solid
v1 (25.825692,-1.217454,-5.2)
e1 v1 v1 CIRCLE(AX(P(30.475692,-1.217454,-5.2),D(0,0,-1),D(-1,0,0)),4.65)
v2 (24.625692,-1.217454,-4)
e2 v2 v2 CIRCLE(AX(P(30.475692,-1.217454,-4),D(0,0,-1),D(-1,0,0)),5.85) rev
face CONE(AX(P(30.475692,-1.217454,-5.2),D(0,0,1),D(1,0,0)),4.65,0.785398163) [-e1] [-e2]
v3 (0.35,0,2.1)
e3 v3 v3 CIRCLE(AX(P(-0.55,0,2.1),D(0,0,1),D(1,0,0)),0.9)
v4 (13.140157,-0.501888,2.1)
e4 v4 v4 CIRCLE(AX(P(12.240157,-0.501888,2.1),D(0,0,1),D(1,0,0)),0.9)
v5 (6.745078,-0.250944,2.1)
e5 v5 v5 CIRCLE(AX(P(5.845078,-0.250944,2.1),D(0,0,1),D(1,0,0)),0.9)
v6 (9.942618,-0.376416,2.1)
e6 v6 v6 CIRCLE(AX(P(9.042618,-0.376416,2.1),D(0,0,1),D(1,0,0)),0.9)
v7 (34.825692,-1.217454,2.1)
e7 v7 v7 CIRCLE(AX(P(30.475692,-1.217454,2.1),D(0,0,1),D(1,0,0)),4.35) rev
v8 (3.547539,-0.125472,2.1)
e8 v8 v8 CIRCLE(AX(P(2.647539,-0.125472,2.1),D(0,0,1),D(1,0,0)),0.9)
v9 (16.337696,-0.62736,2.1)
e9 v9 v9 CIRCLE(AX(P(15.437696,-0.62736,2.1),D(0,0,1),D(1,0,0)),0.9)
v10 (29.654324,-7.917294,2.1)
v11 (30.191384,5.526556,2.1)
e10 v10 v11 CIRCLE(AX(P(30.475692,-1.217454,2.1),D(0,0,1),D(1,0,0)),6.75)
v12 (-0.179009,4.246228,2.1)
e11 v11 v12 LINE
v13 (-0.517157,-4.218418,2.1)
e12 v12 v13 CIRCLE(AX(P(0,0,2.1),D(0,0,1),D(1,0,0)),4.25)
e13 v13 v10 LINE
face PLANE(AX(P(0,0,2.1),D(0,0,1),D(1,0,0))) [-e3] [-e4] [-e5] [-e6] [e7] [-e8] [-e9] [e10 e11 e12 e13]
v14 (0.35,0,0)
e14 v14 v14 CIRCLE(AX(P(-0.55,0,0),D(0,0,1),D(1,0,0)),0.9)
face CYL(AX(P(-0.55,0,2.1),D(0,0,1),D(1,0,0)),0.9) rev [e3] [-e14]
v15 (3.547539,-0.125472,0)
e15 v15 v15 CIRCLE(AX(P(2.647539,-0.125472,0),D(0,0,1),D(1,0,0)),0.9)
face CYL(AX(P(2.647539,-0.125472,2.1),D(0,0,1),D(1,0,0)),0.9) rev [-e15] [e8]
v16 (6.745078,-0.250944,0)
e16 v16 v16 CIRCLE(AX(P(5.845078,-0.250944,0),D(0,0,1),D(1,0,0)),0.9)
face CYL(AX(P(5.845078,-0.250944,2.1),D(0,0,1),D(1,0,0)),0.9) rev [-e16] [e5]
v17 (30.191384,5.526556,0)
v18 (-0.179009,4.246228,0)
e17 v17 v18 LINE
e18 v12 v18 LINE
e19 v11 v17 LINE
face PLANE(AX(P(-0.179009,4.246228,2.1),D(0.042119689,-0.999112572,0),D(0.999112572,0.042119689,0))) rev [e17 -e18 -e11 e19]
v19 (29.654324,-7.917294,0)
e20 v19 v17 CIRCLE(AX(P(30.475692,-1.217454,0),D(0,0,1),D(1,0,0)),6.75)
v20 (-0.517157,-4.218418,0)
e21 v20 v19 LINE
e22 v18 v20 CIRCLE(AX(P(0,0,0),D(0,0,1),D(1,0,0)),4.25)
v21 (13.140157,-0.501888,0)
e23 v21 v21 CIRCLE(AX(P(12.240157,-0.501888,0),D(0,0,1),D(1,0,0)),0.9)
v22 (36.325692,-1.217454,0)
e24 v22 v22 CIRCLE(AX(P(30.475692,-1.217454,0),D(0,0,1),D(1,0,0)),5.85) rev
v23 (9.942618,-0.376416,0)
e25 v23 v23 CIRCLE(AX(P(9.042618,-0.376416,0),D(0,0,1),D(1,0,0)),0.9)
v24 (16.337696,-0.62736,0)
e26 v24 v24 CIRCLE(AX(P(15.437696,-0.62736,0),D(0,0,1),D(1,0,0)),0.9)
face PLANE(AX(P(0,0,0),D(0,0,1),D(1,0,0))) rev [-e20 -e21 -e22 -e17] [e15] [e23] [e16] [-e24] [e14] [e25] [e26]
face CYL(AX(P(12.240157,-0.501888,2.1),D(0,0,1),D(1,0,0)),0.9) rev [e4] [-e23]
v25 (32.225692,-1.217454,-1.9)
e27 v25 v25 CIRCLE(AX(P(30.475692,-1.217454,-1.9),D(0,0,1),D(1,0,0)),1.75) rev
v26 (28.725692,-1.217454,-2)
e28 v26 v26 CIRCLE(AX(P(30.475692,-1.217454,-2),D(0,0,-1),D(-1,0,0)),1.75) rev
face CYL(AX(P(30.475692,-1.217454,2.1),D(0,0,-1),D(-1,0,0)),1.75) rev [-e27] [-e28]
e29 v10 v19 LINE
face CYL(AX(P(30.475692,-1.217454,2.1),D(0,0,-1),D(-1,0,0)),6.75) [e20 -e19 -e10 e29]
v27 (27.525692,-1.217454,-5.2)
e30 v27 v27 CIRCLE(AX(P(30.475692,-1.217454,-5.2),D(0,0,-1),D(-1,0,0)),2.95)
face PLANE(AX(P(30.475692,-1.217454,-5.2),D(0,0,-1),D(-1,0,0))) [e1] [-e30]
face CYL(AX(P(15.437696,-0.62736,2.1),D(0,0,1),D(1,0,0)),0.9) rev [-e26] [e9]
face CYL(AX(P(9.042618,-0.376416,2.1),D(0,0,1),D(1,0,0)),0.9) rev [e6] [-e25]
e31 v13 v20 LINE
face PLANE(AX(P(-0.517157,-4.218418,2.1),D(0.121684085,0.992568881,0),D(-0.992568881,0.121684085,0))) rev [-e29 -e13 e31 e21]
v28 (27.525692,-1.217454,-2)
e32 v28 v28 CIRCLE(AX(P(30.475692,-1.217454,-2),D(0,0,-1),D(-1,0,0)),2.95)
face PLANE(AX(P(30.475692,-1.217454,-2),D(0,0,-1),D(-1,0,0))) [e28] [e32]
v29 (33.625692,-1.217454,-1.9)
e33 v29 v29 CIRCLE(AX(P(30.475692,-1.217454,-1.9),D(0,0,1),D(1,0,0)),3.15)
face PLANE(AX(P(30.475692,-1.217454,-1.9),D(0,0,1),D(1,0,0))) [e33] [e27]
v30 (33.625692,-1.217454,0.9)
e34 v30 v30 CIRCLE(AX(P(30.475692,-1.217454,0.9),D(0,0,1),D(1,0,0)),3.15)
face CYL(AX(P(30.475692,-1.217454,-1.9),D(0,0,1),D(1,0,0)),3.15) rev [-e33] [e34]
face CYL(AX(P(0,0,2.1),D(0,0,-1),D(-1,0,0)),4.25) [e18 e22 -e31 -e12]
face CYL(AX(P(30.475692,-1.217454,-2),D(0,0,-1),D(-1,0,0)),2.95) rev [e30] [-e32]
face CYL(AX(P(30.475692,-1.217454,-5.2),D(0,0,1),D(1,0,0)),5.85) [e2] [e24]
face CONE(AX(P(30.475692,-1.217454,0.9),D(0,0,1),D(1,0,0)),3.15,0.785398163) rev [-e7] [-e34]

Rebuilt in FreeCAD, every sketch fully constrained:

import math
import FreeCAD as App
import Part
import Sketcher

V = App.Vector


def edges_at(feature, points):
    """Names of the edges that pass closest to the given points."""
    edges = feature.Shape.Edges
    near = lambda p: min(range(len(edges)), key=lambda i: edges[i].distToShape(Part.Vertex(*p))[0])
    return sorted({f"Edge{near(p) + 1}" for p in points})

doc = App.newDocument("Part")
body = doc.addObject("PartDesign::Body", "Body")

# Sketch on XY plane
sketch1 = body.newObject("Sketcher::SketchObject", "Sketch")
sketch1.AttachmentSupport = (doc.getObject("XY_Plane"), [""])
sketch1.MapMode = "FlatFace"
sketch1.addGeometry([
    Part.LineSegment(V(30.2, 5.5, 0), V(-0.2, 4.2, 0)),
    Part.ArcOfCircle(Part.Circle(V(0, 0, 0), V(0, 0, 1), 4.2), math.radians(92), math.radians(263)),
    Part.LineSegment(V(-0.5, -4.2, 0), V(29.7, -7.9, 0)),
    Part.ArcOfCircle(Part.Circle(V(30.5, -1.2, 0), V(0, 0, 1), 6.8), math.radians(-97), math.radians(92)),
], False)
sketch1.addConstraint([
    Sketcher.Constraint("Tangent", 0, 2, 1, 1),
    Sketcher.Constraint("Tangent", 1, 2, 2, 1),
    Sketcher.Constraint("Tangent", 2, 2, 3, 1),
    Sketcher.Constraint("Tangent", 3, 2, 0, 1),
    Sketcher.Constraint("Coincident", 1, 3, -1, 1),
    Sketcher.Constraint("Radius", 1, 4.25),
    Sketcher.Constraint("Radius", 3, 6.75),
    Sketcher.Constraint("DistanceX", 0, 2, 3, 3, 30.654701),
    Sketcher.Constraint("Distance", 0, 30.397368),
])
pad1 = body.newObject("PartDesign::Pad", "Pad")
pad1.Profile = sketch1
pad1.Length = 2.1

# Sketch on XY plane
sketch2 = body.newObject("Sketcher::SketchObject", "Sketch001")
sketch2.AttachmentSupport = (doc.getObject("XY_Plane"), [""])
sketch2.MapMode = "FlatFace"
sketch2.addGeometry(Part.Circle(V(30, -1, 0), V(0, 0, 1), 6), False)
sketch2.addConstraint([
    Sketcher.Constraint("Diameter", 0, 11.7),
    Sketcher.Constraint("DistanceX", -1, 1, 0, 3, 30.475692),
    Sketcher.Constraint("DistanceY", 0, 3, -1, 1, 1.217454),
])
pad2 = body.newObject("PartDesign::Pad", "Pad001")
pad2.Profile = sketch2
pad2.Length = 5.2
pad2.Reversed = True

# Sketch on XY plane
sketch3 = body.newObject("Sketcher::SketchObject", "Sketch002")
sketch3.AttachmentSupport = (doc.getObject("XY_Plane"), [""])
sketch3.MapMode = "FlatFace"
sketch3.AttachmentOffset = App.Placement(V(0, 0, -5.2), App.Rotation())
sketch3.addGeometry(Part.Circle(V(30.5, -1.2, 0), V(0, 0, 1), 1.8), False)
sketch3.addConstraint([
    Sketcher.Constraint("Diameter", 0, 3.5),
    Sketcher.Constraint("DistanceX", -1, 1, 0, 3, 30.475692),
    Sketcher.Constraint("DistanceY", 0, 3, -1, 1, 1.217454),
])
pocket1 = body.newObject("PartDesign::Pocket", "Pocket")
pocket1.Profile = sketch3
pocket1.Type = "ThroughAll"
pocket1.Reversed = True

# Sketch on XY plane
sketch4 = body.newObject("Sketcher::SketchObject", "Sketch003")
sketch4.AttachmentSupport = (doc.getObject("XY_Plane"), [""])
sketch4.MapMode = "FlatFace"
sketch4.AttachmentOffset = App.Placement(V(0, 0, 2.1), App.Rotation())
sketch4.addGeometry(Part.Circle(V(30.5, -1.2, 0), V(0, 0, 1), 3.1), False)
sketch4.addConstraint([
    Sketcher.Constraint("Diameter", 0, 6.3),
    Sketcher.Constraint("DistanceX", -1, 1, 0, 3, 30.475692),
    Sketcher.Constraint("DistanceY", 0, 3, -1, 1, 1.217454),
])
pocket2 = body.newObject("PartDesign::Pocket", "Pocket001")
pocket2.Profile = sketch4
pocket2.Length = 4

# Sketch on XY plane
sketch5 = body.newObject("Sketcher::SketchObject", "Sketch004")
sketch5.AttachmentSupport = (doc.getObject("XY_Plane"), [""])
sketch5.MapMode = "FlatFace"
sketch5.AttachmentOffset = App.Placement(V(0, 0, -5.2), App.Rotation())
sketch5.addGeometry(Part.Circle(V(30.5, -1.2, 0), V(0, 0, 1), 3), False)
sketch5.addConstraint([
    Sketcher.Constraint("Diameter", 0, 5.9),
    Sketcher.Constraint("DistanceX", -1, 1, 0, 3, 30.475692),
    Sketcher.Constraint("DistanceY", 0, 3, -1, 1, 1.217454),
])
pocket3 = body.newObject("PartDesign::Pocket", "Pocket002")
pocket3.Profile = sketch5
pocket3.Length = 3.2
pocket3.Reversed = True
doc.recompute()

chamfer = body.newObject("PartDesign::Chamfer", "Chamfer")
chamfer.Base = (pocket3, edges_at(pocket3, [(24.626, -1.217, -5.2), (27.326, -1.217, 2.1)]))
chamfer.Size = 1.2

# Sketch on XY plane
sketch6 = body.newObject("Sketcher::SketchObject", "Sketch005")
sketch6.AttachmentSupport = (doc.getObject("XY_Plane"), [""])
sketch6.MapMode = "FlatFace"
sketch6.AttachmentOffset = App.Placement(V(0, 0, 2.1), App.Rotation())
sketch6.addGeometry(Part.Circle(V(-0.6, 0, 0), V(0, 0, 1), 0.9), False)
sketch6.addConstraint([
    Sketcher.Constraint("PointOnObject", 0, 3, -1),
    Sketcher.Constraint("Diameter", 0, 1.8),
    Sketcher.Constraint("DistanceX", 0, 3, -1, 1, 0.55),
])
doc.recompute()
hole = body.newObject("PartDesign::Hole", "Hole")
hole.Profile = sketch6
hole.ThreadType = "None"
hole.Diameter = 1.8
hole.DepthType = "ThroughAll"
doc.recompute()

datumline = body.newObject("PartDesign::Line", "DatumLine")
datumline.Placement = App.Placement(V(0, 0, 0), App.Rotation(V(0, 0, 1), V(0.999230992, -0.039210004, 0)))
linearpattern = body.newObject("PartDesign::LinearPattern", "LinearPattern")
linearpattern.Originals = [hole]
linearpattern.Direction = (datumline, [""])
linearpattern.Mode = "offset"
linearpattern.Offset = 3.2
linearpattern.Occurrences = 6
body.Tip = linearpattern

doc.recompute()
